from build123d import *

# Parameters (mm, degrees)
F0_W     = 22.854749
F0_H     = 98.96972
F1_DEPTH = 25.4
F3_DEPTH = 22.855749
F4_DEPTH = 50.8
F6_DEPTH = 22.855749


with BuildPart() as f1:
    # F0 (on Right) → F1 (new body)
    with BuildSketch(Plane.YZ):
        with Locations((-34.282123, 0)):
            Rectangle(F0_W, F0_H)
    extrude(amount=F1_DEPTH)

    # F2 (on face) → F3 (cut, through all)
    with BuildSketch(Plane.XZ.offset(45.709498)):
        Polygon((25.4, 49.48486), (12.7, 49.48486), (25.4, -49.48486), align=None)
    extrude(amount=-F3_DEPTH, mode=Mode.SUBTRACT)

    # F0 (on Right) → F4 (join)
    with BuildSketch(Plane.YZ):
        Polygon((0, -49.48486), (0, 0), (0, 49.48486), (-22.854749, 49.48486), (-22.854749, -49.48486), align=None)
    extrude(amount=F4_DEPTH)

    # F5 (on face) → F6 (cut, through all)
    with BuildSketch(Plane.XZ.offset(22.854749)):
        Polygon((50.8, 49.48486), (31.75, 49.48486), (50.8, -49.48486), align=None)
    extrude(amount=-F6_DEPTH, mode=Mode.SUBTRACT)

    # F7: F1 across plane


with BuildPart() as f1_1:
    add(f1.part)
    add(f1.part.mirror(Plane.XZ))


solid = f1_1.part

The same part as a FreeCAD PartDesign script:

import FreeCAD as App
import Part
import Sketcher
Q = App.Units.Quantity

doc = App.newDocument("Part")
params = doc.addObject("Spreadsheet::Sheet", "Params")
for row, (alias, value) in enumerate([
    ("pad1_length", "1 in"),
    ("sketch2_width", "0.5 in"),
    ("pad2_length", "2 in"),
    ("sketch4_width", "0.75 in"),
], start=1):
    params.set(f"A{row}", alias)
    params.set(f"B{row}", "=" + value)
    params.setAlias(f"B{row}", alias)

body = doc.addObject("PartDesign::Body", "Body")

# Sketch on YZ plane
sketch1 = body.newObject("Sketcher::SketchObject", "Sketch")
sketch1.AttachmentSupport = (doc.getObject("YZ_Plane"), [""])
sketch1.MapMode = "FlatFace"
sketch1.addGeometry([
    Part.LineSegment(App.Vector(-45.709497, 49.48486, 0), App.Vector(-45.709497, -49.48486, 0)),
    Part.LineSegment(App.Vector(-45.709497, -49.48486, 0), App.Vector(-22.854748, -49.48486, 0)),
    Part.LineSegment(App.Vector(-22.854748, -49.48486, 0), App.Vector(-22.854748, 49.48486, 0)),
    Part.LineSegment(App.Vector(-22.854748, 49.48486, 0), App.Vector(-45.709497, 49.48486, 0)),
], False)
sketch1.addConstraint([
    Sketcher.Constraint("Coincident", 0, 2, 1, 1),
    Sketcher.Constraint("Coincident", 1, 2, 2, 1),
    Sketcher.Constraint("Coincident", 2, 2, 3, 1),
    Sketcher.Constraint("Coincident", 3, 2, 0, 1),
    Sketcher.Constraint("Vertical", 0),
    Sketcher.Constraint("Horizontal", 1),
    Sketcher.Constraint("Vertical", 2),
    Sketcher.Constraint("Horizontal", 3),
    Sketcher.Constraint("DistanceX", 1, 1, 1, 2, Q("22.854749 mm")),
    Sketcher.Constraint("DistanceY", 0, 2, 0, 1, Q("98.96972 mm")),
    Sketcher.Constraint("DistanceY", 0, 2, -1, 1, Q("49.48486 mm")),
    Sketcher.Constraint("DistanceX", 1, 2, -1, 1, Q("22.854748 mm")),
])
pad1 = body.newObject("PartDesign::Pad", "Pad")
pad1.Profile = sketch1
pad1.setExpression("Length", "Params.pad1_length")

# Sketch on XZ plane
sketch2 = body.newObject("Sketcher::SketchObject", "Sketch001")
sketch2.AttachmentSupport = (doc.getObject("XZ_Plane"), [""])
sketch2.MapMode = "FlatFace"
sketch2.AttachmentOffset = App.Placement(App.Vector(0, 0, 45.709498), App.Rotation())
sketch2.addGeometry([
    Part.LineSegment(App.Vector(25.4, 49.48486, 0), App.Vector(12.7, 49.48486, 0)),
    Part.LineSegment(App.Vector(12.7, 49.48486, 0), App.Vector(25.4, -49.48486, 0)),
    Part.LineSegment(App.Vector(25.4, -49.48486, 0), App.Vector(25.4, 49.48486, 0)),
], False)
sketch2.addConstraint([
    Sketcher.Constraint("Coincident", 0, 2, 1, 1),
    Sketcher.Constraint("Coincident", 1, 2, 2, 1),
    Sketcher.Constraint("Coincident", 2, 2, 0, 1),
    Sketcher.Constraint("Horizontal", 0),
    Sketcher.Constraint("Vertical", 2),
    Sketcher.Constraint("DistanceX", 0, 2, 0, 1, Q("0.5 in")),
    Sketcher.Constraint("DistanceX", -1, 1, 1, 2, Q("1 in")),
    Sketcher.Constraint("DistanceY", 2, 1, 2, 2, Q("98.96972 mm")),
    Sketcher.Constraint("DistanceY", -1, 1, 0, 2, Q("49.48486 mm")),
])
sketch2.setExpression("Constraints[5]", "Params.sketch2_width")
pocket1 = body.newObject("PartDesign::Pocket", "Pocket")
pocket1.Profile = sketch2
pocket1.Type = "ThroughAll"

# Sketch on YZ plane
sketch3 = body.newObject("Sketcher::SketchObject", "Sketch002")
sketch3.AttachmentSupport = (doc.getObject("YZ_Plane"), [""])
sketch3.MapMode = "FlatFace"
sketch3.addGeometry([
    Part.LineSegment(App.Vector(0, -49.48486, 0), App.Vector(0, 49.48486, 0)),
    Part.LineSegment(App.Vector(0, 49.48486, 0), App.Vector(-22.854749, 49.48486, 0)),
    Part.LineSegment(App.Vector(-22.854749, 49.48486, 0), App.Vector(-22.854749, -49.48486, 0)),
    Part.LineSegment(App.Vector(-22.854749, -49.48486, 0), App.Vector(0, -49.48486, 0)),
], False)
sketch3.addConstraint([
    Sketcher.Constraint("Coincident", 0, 2, 1, 1),
    Sketcher.Constraint("Coincident", 1, 2, 2, 1),
    Sketcher.Constraint("Coincident", 2, 2, 3, 1),
    Sketcher.Constraint("Coincident", 3, 2, 0, 1),
    Sketcher.Constraint("Vertical", 0),
    Sketcher.Constraint("Horizontal", 1),
    Sketcher.Constraint("Vertical", 2),
    Sketcher.Constraint("Horizontal", 3),
    Sketcher.Constraint("Symmetric", 0, 2, 3, 2, -1, 1),
    Sketcher.Constraint("DistanceX", 1, 2, 1, 1, Q("22.854749 mm")),
    Sketcher.Constraint("DistanceY", 0, 1, 0, 2, Q("98.96972 mm")),
])
pad2 = body.newObject("PartDesign::Pad", "Pad001")
pad2.Profile = sketch3
pad2.setExpression("Length", "Params.pad2_length")

# Sketch on XZ plane
sketch4 = body.newObject("Sketcher::SketchObject", "Sketch003")
sketch4.AttachmentSupport = (doc.getObject("XZ_Plane"), [""])
sketch4.MapMode = "FlatFace"
sketch4.AttachmentOffset = App.Placement(App.Vector(0, 0, 22.854749), App.Rotation())
sketch4.addGeometry([
    Part.LineSegment(App.Vector(50.8, 49.48486, 0), App.Vector(31.75, 49.48486, 0)),
    Part.LineSegment(App.Vector(31.75, 49.48486, 0), App.Vector(50.8, -49.48486, 0)),
    Part.LineSegment(App.Vector(50.8, -49.48486, 0), App.Vector(50.8, 49.48486, 0)),
], False)
sketch4.addConstraint([
    Sketcher.Constraint("Coincident", 0, 2, 1, 1),
    Sketcher.Constraint("Coincident", 1, 2, 2, 1),
    Sketcher.Constraint("Coincident", 2, 2, 0, 1),
    Sketcher.Constraint("Horizontal", 0),
    Sketcher.Constraint("Vertical", 2),
    Sketcher.Constraint("DistanceX", -1, 1, 1, 2, Q("2 in")),
    Sketcher.Constraint("DistanceX", 0, 2, 0, 1, Q("0.75 in")),
    Sketcher.Constraint("DistanceY", 2, 1, 2, 2, Q("98.96972 mm")),
    Sketcher.Constraint("DistanceY", -1, 1, 0, 2, Q("49.48486 mm")),
])
sketch4.setExpression("Constraints[6]", "Params.sketch4_width")
pocket2 = body.newObject("PartDesign::Pocket", "Pocket001")
pocket2.Profile = sketch4
pocket2.Type = "ThroughAll"
body2 = doc.addObject("PartDesign::Body", "Body001")
doc.recompute()

body2.BaseFeature = body
doc.recompute()

mirroring = doc.addObject("Part::Mirroring", "Mirroring")
mirroring.Source = body
mirroring.Base = App.Vector(0, 0, 0)
mirroring.Normal = App.Vector(0, -1, 0)
body3 = doc.addObject("PartDesign::Body", "Body002")
body3.BaseFeature = mirroring
boolean = body2.newObject("PartDesign::Boolean", "Boolean")
boolean.Type = "Fuse"
boolean.addObjects([body3])
doc.recompute()
mirroring.Visibility = False

doc.recompute()
